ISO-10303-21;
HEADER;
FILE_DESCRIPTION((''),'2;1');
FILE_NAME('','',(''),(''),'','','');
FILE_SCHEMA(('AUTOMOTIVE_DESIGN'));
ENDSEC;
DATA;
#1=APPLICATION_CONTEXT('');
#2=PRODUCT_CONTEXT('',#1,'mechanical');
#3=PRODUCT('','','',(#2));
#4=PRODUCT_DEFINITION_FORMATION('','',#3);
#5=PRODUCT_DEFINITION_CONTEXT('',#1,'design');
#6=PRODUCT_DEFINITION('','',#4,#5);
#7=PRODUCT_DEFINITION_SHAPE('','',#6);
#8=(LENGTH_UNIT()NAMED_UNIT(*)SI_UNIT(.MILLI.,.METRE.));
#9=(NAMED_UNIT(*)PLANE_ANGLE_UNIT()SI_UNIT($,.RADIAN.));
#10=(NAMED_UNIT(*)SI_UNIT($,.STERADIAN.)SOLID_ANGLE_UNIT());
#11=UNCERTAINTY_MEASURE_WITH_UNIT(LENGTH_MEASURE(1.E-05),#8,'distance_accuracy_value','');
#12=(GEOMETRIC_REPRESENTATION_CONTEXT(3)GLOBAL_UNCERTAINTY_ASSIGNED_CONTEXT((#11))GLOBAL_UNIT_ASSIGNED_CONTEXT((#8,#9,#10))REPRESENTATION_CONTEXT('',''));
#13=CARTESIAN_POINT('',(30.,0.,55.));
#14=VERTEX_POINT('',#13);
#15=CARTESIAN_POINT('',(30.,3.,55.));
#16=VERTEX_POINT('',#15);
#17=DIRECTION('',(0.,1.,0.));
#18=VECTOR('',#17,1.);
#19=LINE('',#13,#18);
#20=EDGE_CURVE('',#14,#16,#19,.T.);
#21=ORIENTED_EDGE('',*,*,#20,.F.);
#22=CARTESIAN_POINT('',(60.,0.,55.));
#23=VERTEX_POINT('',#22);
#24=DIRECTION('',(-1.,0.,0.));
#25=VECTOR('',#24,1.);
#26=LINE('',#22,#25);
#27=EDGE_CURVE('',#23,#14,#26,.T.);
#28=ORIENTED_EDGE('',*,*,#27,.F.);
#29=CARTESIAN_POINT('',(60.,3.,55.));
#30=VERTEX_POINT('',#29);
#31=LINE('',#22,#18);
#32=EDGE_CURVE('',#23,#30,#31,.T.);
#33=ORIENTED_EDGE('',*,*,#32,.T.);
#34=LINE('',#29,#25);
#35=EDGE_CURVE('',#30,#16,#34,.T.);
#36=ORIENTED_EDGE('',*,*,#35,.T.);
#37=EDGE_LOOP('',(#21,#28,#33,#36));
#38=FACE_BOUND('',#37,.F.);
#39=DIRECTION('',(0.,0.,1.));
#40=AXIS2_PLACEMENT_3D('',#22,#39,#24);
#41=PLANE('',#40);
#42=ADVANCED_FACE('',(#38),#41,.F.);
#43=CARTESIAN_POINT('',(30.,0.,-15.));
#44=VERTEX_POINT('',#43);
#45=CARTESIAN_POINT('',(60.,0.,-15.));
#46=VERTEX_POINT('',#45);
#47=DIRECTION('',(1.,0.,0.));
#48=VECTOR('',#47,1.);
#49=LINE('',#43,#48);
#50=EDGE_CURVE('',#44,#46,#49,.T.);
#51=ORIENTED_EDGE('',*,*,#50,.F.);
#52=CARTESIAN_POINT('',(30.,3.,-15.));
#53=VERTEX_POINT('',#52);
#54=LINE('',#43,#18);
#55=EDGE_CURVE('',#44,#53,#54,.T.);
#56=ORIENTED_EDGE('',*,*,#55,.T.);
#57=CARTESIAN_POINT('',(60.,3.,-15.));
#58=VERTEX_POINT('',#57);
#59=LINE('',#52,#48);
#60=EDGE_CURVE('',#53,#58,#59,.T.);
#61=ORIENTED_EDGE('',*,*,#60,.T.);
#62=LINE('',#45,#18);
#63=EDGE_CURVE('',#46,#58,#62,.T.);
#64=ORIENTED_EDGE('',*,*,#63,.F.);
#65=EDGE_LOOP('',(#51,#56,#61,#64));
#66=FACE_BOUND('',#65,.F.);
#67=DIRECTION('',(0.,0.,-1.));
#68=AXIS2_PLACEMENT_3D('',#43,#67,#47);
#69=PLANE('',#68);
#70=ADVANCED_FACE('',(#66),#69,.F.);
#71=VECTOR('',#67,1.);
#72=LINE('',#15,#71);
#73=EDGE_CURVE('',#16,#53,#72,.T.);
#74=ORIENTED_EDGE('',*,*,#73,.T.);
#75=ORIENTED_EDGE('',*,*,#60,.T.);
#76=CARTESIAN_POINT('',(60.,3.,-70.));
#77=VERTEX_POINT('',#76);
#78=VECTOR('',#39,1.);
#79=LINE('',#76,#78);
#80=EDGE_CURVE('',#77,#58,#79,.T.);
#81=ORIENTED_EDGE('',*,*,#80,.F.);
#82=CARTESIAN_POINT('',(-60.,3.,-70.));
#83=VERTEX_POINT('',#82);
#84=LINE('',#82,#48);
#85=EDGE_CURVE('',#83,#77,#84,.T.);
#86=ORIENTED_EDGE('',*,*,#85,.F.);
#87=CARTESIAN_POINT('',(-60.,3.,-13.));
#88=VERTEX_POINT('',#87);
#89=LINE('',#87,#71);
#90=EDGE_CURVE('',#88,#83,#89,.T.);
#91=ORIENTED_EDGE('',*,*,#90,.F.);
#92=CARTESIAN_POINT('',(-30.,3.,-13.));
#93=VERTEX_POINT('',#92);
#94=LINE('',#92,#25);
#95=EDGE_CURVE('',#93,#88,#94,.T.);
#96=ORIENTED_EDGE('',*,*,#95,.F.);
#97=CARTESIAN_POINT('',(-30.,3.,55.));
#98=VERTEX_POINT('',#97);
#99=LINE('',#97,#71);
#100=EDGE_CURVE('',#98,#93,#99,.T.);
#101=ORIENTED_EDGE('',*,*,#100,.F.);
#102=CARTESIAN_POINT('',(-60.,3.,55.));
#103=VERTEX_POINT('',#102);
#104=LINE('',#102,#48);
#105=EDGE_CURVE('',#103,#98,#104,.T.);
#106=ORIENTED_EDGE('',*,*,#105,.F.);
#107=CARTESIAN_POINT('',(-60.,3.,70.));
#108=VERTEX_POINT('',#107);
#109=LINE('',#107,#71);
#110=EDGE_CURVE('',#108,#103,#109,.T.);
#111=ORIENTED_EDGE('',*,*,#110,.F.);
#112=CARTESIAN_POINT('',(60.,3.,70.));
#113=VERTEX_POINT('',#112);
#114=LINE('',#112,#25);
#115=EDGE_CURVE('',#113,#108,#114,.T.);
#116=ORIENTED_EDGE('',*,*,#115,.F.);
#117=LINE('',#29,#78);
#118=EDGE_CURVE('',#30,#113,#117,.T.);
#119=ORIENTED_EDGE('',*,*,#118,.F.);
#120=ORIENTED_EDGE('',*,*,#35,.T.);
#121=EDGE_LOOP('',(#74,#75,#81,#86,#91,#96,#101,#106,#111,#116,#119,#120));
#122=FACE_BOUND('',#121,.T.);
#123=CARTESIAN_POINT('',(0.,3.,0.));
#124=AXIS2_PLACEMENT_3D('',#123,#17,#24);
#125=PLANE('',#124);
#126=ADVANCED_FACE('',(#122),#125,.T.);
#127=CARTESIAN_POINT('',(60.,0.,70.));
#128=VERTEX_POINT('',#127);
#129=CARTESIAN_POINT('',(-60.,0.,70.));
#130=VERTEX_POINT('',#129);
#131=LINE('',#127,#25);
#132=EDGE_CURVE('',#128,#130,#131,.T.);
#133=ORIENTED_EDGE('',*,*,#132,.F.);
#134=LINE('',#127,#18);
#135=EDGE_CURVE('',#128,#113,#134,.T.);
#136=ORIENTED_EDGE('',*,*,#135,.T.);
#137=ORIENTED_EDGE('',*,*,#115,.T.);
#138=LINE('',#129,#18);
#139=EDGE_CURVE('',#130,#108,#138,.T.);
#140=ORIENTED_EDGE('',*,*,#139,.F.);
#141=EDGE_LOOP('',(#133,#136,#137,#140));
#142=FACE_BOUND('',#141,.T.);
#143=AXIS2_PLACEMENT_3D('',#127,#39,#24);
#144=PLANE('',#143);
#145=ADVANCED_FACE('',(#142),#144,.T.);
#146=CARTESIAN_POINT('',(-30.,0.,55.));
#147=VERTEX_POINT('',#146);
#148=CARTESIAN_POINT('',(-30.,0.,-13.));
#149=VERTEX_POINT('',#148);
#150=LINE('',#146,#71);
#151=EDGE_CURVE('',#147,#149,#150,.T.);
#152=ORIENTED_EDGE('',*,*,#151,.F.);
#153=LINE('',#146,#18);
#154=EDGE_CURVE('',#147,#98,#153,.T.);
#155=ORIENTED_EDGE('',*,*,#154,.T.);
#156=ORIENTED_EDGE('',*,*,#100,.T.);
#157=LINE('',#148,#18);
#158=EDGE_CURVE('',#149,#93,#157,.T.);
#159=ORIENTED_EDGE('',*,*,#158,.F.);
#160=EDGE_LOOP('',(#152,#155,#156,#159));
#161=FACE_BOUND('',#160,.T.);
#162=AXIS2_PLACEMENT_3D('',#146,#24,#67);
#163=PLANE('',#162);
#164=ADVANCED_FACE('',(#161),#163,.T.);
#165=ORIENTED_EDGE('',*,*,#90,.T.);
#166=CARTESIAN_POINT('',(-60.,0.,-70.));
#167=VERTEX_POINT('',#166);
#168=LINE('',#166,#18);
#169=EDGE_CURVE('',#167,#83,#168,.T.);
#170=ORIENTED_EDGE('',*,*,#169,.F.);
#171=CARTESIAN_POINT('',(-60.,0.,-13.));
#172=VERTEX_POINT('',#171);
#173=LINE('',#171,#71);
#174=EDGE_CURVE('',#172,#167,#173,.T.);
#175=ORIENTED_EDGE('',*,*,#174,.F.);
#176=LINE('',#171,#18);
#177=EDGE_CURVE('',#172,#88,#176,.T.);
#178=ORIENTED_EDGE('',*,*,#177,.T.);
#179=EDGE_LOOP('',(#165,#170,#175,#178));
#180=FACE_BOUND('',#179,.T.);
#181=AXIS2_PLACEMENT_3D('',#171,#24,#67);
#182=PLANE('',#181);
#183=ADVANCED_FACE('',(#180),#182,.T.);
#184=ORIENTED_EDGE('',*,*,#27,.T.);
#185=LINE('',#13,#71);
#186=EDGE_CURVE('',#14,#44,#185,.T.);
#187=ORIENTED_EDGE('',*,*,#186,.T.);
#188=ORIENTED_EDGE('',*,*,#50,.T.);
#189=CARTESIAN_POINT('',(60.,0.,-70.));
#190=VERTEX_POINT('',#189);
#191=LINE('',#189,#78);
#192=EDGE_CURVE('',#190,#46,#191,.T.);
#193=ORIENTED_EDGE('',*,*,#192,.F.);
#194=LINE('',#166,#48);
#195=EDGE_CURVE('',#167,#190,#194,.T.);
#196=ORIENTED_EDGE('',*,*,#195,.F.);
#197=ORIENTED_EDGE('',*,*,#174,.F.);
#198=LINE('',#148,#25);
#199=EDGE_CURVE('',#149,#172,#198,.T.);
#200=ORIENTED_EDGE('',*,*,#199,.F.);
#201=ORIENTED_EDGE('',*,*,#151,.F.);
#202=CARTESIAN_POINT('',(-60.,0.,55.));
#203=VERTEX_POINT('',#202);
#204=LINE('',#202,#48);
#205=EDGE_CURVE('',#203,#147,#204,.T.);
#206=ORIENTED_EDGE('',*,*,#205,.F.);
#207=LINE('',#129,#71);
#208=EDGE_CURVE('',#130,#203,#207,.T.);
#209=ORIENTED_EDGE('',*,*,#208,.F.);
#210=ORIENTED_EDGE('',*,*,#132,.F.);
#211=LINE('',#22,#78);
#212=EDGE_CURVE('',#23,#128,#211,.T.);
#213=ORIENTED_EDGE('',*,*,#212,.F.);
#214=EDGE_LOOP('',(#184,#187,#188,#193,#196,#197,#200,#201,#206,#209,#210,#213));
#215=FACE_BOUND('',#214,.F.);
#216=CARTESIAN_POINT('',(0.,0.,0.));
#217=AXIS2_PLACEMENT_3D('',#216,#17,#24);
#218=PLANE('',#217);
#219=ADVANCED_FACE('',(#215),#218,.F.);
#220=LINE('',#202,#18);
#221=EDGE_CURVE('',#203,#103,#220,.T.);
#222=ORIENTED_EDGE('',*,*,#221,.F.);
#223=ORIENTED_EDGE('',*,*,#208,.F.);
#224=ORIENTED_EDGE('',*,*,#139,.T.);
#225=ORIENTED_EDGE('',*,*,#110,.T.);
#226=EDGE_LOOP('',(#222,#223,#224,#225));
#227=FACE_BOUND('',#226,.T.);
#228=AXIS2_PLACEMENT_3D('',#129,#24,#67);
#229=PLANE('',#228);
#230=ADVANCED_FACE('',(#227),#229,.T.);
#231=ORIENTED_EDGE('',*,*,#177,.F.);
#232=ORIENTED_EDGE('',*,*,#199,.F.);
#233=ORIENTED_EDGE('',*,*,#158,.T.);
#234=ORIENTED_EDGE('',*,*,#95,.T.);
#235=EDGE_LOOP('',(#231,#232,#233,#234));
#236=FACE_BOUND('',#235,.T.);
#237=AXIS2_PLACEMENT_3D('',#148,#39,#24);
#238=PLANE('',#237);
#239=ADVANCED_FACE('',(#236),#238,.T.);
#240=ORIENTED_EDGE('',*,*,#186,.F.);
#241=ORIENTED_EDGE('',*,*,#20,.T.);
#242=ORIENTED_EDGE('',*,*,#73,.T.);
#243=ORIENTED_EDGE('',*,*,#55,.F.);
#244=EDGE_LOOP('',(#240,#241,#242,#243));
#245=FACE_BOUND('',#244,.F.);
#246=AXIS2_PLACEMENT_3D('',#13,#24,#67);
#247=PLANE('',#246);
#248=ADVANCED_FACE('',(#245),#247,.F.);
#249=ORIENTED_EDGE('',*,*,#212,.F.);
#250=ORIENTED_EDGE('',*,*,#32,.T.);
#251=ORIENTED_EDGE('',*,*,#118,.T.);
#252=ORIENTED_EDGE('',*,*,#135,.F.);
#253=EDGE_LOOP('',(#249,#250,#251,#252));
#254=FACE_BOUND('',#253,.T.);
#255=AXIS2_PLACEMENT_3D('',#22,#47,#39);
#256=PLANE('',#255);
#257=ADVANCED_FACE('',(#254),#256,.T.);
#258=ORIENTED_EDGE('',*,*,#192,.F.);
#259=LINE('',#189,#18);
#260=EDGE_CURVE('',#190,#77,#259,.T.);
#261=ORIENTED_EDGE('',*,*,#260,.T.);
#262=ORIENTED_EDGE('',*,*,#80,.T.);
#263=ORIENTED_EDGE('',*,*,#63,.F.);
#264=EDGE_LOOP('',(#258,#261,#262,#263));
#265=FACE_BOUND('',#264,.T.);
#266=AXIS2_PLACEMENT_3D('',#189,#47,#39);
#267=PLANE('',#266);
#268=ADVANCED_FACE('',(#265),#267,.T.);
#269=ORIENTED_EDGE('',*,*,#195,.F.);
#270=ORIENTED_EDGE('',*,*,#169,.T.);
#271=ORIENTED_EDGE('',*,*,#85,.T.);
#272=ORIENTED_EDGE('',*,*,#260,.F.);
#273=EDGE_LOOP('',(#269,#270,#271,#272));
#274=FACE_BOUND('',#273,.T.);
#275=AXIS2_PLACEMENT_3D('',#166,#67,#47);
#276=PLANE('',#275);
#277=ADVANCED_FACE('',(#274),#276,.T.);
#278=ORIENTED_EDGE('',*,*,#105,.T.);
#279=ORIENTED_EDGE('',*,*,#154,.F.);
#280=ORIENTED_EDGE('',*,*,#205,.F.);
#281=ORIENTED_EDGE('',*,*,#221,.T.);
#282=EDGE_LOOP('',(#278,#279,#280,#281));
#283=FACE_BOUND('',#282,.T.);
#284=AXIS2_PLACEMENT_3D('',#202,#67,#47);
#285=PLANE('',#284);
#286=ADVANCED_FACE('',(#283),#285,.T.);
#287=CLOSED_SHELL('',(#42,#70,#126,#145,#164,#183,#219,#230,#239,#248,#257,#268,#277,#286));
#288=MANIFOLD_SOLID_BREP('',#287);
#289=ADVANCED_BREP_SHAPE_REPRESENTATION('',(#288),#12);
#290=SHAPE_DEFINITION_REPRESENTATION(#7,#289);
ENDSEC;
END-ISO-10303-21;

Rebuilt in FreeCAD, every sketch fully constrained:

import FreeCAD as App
import Part
import Sketcher

V = App.Vector
Q = App.Units.Quantity

doc = App.newDocument("Part")
params = doc.addObject("Spreadsheet::Sheet", "Params")
for row, (alias, value) in enumerate([
    ("sketch1_width", "120 mm"),
    ("sketch1_width2", "30 mm"),
    ("sketch1_height", "15 mm"),
    ("sketch1_height2", "70 mm"),
    ("sketch1_height3", "68 mm"),
    ("pad1_length", "3 mm"),
], start=1):
    params.set(f"A{row}", alias)
    params.set(f"B{row}", "=" + value)
    params.setAlias(f"B{row}", alias)

body = doc.addObject("PartDesign::Body", "Body")

# Sketch on XZ plane
sketch1 = body.newObject("Sketcher::SketchObject", "Sketch")
sketch1.AttachmentSupport = (doc.getObject("XZ_Plane"), [""])
sketch1.MapMode = "FlatFace"
sketch1.addGeometry([
    Part.LineSegment(V(-60, 70, 0), V(60, 70, 0)),  # 0
    Part.LineSegment(V(60, 70, 0), V(60, 55, 0)),  # 1
    Part.LineSegment(V(60, 55, 0), V(30, 55, 0)),  # 2
    Part.LineSegment(V(30, 55, 0), V(30, -15, 0)),  # 3
    Part.LineSegment(V(30, -15, 0), V(60, -15, 0)),  # 4
    Part.LineSegment(V(60, -15, 0), V(60, -70, 0)),  # 5
    Part.LineSegment(V(60, -70, 0), V(-60, -70, 0)),  # 6
    Part.LineSegment(V(-60, -70, 0), V(-60, -13, 0)),  # 7
    Part.LineSegment(V(-60, -13, 0), V(-30, -13, 0)),  # 8
    Part.LineSegment(V(-30, -13, 0), V(-30, 55, 0)),  # 9
    Part.LineSegment(V(-30, 55, 0), V(-60, 55, 0)),  # 10
    Part.LineSegment(V(-60, 55, 0), V(-60, 70, 0)),  # 11
], False)
sketch1.addConstraint([
    Sketcher.Constraint("Coincident", 0, 2, 1, 1),
    Sketcher.Constraint("Coincident", 1, 2, 2, 1),
    Sketcher.Constraint("Coincident", 2, 2, 3, 1),
    Sketcher.Constraint("Coincident", 3, 2, 4, 1),
    Sketcher.Constraint("Coincident", 4, 2, 5, 1),
    Sketcher.Constraint("Coincident", 5, 2, 6, 1),
    Sketcher.Constraint("Coincident", 6, 2, 7, 1),
    Sketcher.Constraint("Coincident", 7, 2, 8, 1),
    Sketcher.Constraint("Coincident", 8, 2, 9, 1),
    Sketcher.Constraint("Coincident", 9, 2, 10, 1),
    Sketcher.Constraint("Coincident", 10, 2, 11, 1),
    Sketcher.Constraint("Coincident", 11, 2, 0, 1),
    Sketcher.Constraint("Horizontal", 0),
    Sketcher.Constraint("Vertical", 1),
    Sketcher.Constraint("Horizontal", 2),
    Sketcher.Constraint("Vertical", 3),
    Sketcher.Constraint("Horizontal", 4),
    Sketcher.Constraint("Vertical", 5),
    Sketcher.Constraint("Horizontal", 6),
    Sketcher.Constraint("Vertical", 7),
    Sketcher.Constraint("Horizontal", 8),
    Sketcher.Constraint("Vertical", 9),
    Sketcher.Constraint("Horizontal", 10),
    Sketcher.Constraint("Vertical", 11),
    Sketcher.Constraint("Symmetric", 0, 2, 6, 2, -1, 1),
    Sketcher.Constraint("Symmetric", 2, 2, 9, 2, -2),
    Sketcher.Constraint("Vertical", 1, 2, 4, 2),
    Sketcher.Constraint("Vertical", 7, 2, 10, 2),
    Sketcher.Constraint("DistanceX", 0, 1, 0, 2, Q("120 mm")),
    Sketcher.Constraint("DistanceX", 2, 2, 2, 1, Q("30 mm")),
    Sketcher.Constraint("DistanceY", 1, 2, 1, 1, Q("15 mm")),
    Sketcher.Constraint("DistanceY", 3, 2, 3, 1, Q("70 mm")),
    Sketcher.Constraint("DistanceY", 9, 1, 9, 2, Q("68 mm")),
    Sketcher.Constraint("DistanceY", -1, 1, 0, 2, Q("70 mm")),
])
sketch1.setExpression("Constraints[28]", "Params.sketch1_width")
sketch1.setExpression("Constraints[29]", "Params.sketch1_width2")
sketch1.setExpression("Constraints[30]", "Params.sketch1_height")
sketch1.setExpression("Constraints[31]", "Params.sketch1_height2")
sketch1.setExpression("Constraints[32]", "Params.sketch1_height3")
pad1 = body.newObject("PartDesign::Pad", "Pad")
pad1.Profile = sketch1
pad1.setExpression("Length", "Params.pad1_length")
pad1.Reversed = True

doc.recompute()
